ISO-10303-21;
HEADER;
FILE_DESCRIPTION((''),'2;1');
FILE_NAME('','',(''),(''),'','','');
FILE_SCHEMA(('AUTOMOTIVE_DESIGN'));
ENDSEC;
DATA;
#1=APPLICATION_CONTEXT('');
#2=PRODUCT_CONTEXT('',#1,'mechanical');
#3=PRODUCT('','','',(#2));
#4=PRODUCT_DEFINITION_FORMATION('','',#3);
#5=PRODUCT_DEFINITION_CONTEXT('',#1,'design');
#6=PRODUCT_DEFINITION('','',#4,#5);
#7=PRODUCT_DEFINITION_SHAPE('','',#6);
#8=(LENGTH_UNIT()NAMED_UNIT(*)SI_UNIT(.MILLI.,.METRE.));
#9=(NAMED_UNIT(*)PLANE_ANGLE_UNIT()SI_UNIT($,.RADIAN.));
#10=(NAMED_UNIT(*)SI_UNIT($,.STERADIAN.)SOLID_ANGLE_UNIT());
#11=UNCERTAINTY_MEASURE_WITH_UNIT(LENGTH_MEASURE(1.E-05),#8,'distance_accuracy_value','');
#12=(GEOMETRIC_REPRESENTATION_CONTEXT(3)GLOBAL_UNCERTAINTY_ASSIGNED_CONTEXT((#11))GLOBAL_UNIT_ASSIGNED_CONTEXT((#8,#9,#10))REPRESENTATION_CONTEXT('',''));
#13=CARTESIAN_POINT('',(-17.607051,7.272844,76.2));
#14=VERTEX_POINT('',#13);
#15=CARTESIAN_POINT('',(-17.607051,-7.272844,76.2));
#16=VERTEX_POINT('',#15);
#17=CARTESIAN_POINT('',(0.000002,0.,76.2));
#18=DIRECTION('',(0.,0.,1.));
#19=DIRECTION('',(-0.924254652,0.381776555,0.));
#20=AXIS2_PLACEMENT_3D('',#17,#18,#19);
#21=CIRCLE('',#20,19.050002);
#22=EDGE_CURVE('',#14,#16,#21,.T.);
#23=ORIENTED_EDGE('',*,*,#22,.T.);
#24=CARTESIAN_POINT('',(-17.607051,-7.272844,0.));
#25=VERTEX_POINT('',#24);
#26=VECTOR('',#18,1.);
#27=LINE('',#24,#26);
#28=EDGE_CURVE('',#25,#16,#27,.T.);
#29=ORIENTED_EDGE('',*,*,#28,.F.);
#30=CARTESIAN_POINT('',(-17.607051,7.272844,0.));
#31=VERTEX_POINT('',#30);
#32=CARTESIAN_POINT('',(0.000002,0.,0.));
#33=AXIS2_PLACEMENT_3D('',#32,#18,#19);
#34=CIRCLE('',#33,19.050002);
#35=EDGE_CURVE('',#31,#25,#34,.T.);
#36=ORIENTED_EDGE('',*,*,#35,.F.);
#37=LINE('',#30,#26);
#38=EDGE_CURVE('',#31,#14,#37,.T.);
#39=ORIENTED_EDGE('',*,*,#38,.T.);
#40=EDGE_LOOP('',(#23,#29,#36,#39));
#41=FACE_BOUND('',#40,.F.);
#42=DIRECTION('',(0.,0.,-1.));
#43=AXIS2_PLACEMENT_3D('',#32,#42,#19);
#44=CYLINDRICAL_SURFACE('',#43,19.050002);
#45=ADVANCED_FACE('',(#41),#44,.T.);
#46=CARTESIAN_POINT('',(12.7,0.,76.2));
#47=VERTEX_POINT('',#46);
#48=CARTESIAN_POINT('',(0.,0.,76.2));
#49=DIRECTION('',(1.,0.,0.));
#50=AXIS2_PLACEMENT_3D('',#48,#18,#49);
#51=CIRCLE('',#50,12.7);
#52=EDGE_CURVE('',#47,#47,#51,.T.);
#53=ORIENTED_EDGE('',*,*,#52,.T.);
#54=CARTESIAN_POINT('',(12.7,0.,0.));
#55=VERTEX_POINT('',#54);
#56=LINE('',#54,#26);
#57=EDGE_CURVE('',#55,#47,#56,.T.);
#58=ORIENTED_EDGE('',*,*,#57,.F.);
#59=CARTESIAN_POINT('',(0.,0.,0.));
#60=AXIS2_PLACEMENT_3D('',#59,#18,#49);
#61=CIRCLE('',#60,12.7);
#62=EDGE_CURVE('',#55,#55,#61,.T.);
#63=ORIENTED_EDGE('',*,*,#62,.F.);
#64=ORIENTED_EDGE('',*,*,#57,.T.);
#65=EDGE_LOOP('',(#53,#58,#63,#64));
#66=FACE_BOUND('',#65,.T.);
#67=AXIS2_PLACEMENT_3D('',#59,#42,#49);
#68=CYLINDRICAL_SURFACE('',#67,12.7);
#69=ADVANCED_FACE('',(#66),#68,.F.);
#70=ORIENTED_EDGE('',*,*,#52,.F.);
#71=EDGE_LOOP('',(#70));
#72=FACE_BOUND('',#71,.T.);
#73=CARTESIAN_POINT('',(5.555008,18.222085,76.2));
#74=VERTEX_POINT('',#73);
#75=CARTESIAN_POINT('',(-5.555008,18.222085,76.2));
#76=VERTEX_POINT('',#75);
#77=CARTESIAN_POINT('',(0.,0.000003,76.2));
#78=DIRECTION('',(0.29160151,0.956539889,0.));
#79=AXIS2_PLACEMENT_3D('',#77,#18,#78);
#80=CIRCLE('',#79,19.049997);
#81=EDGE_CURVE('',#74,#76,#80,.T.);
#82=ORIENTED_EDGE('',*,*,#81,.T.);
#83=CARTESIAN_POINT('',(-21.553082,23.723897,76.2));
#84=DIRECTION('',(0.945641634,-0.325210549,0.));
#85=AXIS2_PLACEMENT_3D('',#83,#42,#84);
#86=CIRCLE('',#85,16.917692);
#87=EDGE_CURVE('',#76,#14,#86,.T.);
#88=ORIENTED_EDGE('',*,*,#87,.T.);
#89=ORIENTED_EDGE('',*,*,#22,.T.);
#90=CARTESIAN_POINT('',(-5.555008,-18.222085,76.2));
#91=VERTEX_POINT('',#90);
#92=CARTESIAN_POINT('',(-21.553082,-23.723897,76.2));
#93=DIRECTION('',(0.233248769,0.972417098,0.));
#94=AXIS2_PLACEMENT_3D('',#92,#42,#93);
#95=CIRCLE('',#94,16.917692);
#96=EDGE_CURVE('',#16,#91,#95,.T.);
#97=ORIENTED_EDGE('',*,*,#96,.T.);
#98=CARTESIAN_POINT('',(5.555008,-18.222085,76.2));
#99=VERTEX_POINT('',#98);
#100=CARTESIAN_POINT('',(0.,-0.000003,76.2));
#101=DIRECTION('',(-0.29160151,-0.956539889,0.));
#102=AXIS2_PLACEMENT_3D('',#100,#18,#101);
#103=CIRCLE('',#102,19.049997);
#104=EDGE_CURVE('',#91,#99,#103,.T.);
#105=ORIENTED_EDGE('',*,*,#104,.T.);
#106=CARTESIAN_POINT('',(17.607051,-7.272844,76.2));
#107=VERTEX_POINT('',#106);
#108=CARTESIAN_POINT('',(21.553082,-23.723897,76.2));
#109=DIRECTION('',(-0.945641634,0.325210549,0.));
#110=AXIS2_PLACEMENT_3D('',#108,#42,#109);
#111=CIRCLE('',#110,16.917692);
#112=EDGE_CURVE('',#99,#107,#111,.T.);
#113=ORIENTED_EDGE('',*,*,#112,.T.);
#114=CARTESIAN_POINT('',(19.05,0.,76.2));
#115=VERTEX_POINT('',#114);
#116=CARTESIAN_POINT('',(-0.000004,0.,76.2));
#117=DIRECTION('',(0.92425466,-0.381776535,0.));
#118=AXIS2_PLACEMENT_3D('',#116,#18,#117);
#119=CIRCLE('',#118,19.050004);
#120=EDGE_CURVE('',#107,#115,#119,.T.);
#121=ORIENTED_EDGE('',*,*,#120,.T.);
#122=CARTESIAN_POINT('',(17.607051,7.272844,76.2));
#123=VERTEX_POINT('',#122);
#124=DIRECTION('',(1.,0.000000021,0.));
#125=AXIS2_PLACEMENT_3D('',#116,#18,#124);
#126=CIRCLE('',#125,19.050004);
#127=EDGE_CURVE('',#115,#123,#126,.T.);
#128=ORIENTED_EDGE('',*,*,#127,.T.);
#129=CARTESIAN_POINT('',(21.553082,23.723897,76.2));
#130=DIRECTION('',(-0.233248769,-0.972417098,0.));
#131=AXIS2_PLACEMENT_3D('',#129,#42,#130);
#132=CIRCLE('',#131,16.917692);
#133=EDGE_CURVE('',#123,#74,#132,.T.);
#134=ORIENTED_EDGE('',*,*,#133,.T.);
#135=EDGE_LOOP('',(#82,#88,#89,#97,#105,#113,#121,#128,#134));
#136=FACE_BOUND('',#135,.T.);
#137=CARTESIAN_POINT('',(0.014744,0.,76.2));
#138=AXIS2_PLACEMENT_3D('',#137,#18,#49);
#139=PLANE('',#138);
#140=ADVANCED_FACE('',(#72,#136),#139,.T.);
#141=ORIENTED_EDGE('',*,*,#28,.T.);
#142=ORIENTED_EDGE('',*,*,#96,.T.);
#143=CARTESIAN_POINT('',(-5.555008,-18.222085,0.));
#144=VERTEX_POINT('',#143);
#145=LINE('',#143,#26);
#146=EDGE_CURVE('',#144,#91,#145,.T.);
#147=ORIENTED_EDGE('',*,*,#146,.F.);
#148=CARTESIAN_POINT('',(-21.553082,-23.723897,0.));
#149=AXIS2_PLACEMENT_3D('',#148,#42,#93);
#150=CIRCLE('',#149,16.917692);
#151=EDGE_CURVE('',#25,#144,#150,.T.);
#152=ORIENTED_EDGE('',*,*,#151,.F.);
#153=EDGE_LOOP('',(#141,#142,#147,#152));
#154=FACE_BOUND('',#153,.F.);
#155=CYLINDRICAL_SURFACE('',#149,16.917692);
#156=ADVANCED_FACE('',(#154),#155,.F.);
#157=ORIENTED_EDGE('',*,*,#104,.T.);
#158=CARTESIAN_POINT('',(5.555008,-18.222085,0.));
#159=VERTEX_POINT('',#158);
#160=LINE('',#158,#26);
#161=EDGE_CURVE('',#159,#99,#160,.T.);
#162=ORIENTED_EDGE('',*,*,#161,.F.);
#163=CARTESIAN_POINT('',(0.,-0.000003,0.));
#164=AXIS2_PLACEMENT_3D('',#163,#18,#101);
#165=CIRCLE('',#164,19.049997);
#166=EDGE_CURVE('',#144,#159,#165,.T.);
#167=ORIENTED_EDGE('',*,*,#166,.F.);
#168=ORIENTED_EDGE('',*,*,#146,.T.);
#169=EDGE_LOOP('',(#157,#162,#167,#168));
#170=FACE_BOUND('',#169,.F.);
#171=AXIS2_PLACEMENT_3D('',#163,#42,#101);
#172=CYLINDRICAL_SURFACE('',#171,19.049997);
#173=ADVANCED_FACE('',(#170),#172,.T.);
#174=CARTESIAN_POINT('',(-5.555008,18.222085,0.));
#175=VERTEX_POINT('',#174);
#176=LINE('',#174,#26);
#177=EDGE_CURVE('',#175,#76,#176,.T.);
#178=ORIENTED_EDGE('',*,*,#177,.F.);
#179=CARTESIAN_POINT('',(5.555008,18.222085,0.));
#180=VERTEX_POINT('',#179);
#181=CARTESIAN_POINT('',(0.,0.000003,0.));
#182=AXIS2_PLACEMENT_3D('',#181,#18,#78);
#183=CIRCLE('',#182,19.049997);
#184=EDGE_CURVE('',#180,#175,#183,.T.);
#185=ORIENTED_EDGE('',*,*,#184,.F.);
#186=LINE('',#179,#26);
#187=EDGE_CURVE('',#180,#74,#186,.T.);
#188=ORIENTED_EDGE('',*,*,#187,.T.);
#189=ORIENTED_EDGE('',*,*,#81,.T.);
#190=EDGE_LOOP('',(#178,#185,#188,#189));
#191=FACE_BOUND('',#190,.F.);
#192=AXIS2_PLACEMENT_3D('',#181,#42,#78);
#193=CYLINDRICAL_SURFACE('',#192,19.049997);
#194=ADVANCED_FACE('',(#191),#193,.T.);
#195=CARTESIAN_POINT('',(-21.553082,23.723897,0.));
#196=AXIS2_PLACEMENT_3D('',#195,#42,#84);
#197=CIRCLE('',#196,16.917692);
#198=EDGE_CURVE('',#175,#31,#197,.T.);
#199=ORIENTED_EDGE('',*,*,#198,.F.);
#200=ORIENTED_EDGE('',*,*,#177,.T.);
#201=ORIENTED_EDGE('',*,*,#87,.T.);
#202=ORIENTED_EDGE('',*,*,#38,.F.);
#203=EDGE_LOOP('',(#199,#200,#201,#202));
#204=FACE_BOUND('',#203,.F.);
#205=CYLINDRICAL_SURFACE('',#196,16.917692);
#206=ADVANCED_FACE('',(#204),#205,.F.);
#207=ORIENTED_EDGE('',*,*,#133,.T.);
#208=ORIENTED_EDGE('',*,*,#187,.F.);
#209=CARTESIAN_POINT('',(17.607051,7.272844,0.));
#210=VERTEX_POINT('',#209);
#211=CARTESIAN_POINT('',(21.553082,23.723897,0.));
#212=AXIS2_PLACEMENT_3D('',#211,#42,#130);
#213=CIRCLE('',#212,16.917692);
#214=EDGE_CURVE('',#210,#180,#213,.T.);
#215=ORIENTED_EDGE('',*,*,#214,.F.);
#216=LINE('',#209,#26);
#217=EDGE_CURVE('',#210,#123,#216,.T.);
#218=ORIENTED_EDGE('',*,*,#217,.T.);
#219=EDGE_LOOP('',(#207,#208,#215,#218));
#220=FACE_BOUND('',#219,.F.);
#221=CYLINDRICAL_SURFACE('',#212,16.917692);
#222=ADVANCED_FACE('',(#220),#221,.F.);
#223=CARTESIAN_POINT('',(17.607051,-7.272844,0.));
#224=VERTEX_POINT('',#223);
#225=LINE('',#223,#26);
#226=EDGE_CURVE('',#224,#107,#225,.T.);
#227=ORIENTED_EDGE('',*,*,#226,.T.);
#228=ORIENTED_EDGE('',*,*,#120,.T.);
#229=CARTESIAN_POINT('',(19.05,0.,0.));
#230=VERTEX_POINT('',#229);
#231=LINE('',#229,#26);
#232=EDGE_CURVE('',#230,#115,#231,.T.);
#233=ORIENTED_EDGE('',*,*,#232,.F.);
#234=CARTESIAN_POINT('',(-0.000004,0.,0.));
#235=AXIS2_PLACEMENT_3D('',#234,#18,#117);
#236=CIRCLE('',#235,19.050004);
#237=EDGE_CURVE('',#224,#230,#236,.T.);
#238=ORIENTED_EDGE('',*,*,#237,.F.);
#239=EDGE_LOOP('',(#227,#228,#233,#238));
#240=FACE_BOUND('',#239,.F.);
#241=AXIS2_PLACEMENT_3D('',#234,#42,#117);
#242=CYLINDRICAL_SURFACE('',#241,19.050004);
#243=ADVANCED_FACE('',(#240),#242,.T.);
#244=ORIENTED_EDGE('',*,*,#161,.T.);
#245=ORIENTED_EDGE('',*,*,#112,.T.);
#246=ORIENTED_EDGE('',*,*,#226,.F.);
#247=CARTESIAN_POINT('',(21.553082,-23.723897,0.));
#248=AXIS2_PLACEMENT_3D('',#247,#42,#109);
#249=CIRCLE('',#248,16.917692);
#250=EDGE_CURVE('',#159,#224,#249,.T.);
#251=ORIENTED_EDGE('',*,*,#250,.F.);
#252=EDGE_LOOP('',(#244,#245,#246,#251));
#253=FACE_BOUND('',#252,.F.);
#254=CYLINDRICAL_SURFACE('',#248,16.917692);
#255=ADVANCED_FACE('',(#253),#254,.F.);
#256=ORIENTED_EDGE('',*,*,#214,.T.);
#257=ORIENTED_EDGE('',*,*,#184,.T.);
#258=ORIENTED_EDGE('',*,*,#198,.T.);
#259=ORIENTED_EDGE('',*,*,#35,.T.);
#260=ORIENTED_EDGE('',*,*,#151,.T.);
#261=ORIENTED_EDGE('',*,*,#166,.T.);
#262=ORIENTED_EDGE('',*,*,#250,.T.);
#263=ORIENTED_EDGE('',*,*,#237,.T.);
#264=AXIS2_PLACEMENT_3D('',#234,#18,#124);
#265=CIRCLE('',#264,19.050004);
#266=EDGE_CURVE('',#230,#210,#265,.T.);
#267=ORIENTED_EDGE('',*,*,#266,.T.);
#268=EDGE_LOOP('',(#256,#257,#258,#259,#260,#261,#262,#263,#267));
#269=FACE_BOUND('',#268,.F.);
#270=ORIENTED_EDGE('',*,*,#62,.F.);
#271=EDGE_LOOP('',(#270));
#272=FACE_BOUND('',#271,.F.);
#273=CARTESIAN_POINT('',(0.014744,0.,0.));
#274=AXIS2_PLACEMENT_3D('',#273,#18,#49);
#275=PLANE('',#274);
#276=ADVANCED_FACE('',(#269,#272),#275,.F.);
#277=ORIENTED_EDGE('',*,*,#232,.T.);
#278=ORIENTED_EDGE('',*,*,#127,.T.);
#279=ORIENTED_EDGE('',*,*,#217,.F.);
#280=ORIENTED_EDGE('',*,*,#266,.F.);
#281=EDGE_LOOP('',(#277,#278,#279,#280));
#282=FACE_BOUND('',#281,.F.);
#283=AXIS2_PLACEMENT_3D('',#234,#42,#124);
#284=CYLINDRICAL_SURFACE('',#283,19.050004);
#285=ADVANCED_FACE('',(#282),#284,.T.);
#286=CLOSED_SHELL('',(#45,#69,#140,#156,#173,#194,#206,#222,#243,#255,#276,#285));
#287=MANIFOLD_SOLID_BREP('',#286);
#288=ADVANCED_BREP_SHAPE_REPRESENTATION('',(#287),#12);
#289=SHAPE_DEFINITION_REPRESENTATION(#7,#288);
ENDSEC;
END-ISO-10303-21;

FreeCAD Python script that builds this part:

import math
import FreeCAD as App
import Part
import Sketcher
Q = App.Units.Quantity

doc = App.newDocument("Part")
body = doc.addObject("PartDesign::Body", "Body")

# Sketch on XY plane
sketch1 = doc.addObject("Sketcher::SketchObject", "Sketch")
body.addObject(sketch1)
sketch1.AttachmentSupport = (doc.XY_Plane, [""])
sketch1.MapMode = "FlatFace"
sketch1.addGeometry([
    Part.ArcOfCircle(Part.Circle(App.Vector(0, 0, 0), App.Vector(0, 0, 1), 19), math.radians(-22), math.radians(0)),  # 0
    Part.ArcOfCircle(Part.Circle(App.Vector(0, 0, 0), App.Vector(0, 0, 1), 19), math.radians(0), math.radians(22)),  # 1
    Part.ArcOfCircle(Part.Circle(App.Vector(22, 24, 0), App.Vector(0, 0, 1), 17), math.radians(-161), math.radians(-103)),  # 2
    Part.ArcOfCircle(Part.Circle(App.Vector(0, 0, 0), App.Vector(0, 0, 1), 19), math.radians(73), math.radians(107)),  # 3
    Part.ArcOfCircle(Part.Circle(App.Vector(-22, 24, 0), App.Vector(0, 0, 1), 17), math.radians(-77), math.radians(-19)),  # 4
    Part.ArcOfCircle(Part.Circle(App.Vector(0, 0, 0), App.Vector(0, 0, 1), 19), math.radians(158), math.radians(202)),  # 5
    Part.ArcOfCircle(Part.Circle(App.Vector(-22, -24, 0), App.Vector(0, 0, 1), 17), math.radians(19), math.radians(77)),  # 6
    Part.ArcOfCircle(Part.Circle(App.Vector(0, 0, 0), App.Vector(0, 0, 1), 19), math.radians(-107), math.radians(-73)),  # 7
    Part.ArcOfCircle(Part.Circle(App.Vector(22, -24, 0), App.Vector(0, 0, 1), 17), math.radians(103), math.radians(161)),  # 8
    Part.Circle(App.Vector(0, 0, 0), App.Vector(0, 0, 1), 13),  # 9
], False)
sketch1.addConstraint([
    Sketcher.Constraint("Tangent", 0, 2, 1, 1),
    Sketcher.Constraint("Coincident", 1, 2, 2, 2),
    Sketcher.Constraint("Coincident", 2, 1, 3, 1),
    Sketcher.Constraint("Coincident", 3, 2, 4, 2),
    Sketcher.Constraint("Coincident", 4, 1, 5, 1),
    Sketcher.Constraint("Coincident", 5, 2, 6, 2),
    Sketcher.Constraint("Coincident", 6, 1, 7, 1),
    Sketcher.Constraint("Coincident", 7, 2, 8, 2),
    Sketcher.Constraint("Coincident", 8, 1, 0, 1),
    Sketcher.Constraint("Coincident", 0, 3, -1, 1),
    Sketcher.Constraint("Coincident", 3, 3, -1, 1),
    Sketcher.Constraint("Coincident", 5, 3, -1, 1),
    Sketcher.Constraint("Coincident", 7, 3, -1, 1),
    Sketcher.Constraint("Coincident", 9, 3, -1, 1),
    Sketcher.Constraint("Equal", 0, 1),
    Sketcher.Constraint("Equal", 2, 4),
    Sketcher.Constraint("Equal", 4, 6),
    Sketcher.Constraint("Equal", 3, 7),
    Sketcher.Constraint("Equal", 6, 8),
    Sketcher.Constraint("Symmetric", 2, 3, 6, 3, -1, 1),
    Sketcher.Constraint("Symmetric", 4, 3, 8, 3, -1, 1),
    Sketcher.Constraint("Symmetric", 2, 3, 4, 3, -2),
    Sketcher.Constraint("PointOnObject", 0, 2, -1),
    Sketcher.Constraint("Horizontal", 1, 2, 4, 1),
    Sketcher.Constraint("Diameter", 9, Q("1 in")),
    Sketcher.Constraint("Radius", 0, Q("0.7500001 in")),
    Sketcher.Constraint("Radius", 3, Q("0.7499999 in")),
    Sketcher.Constraint("Radius", 2, Q("16.917692 mm")),
    Sketcher.Constraint("DistanceY", 6, 3, 3, 3, Q("23.7239 mm")),
    Sketcher.Constraint("DistanceX", -1, 1, 2, 3, Q("21.553082 mm")),
])
pad1 = doc.addObject("PartDesign::Pad", "Pad")
body.addObject(pad1)
pad1.Profile = sketch1
pad1.Length = Q("3 in")

doc.recompute()
